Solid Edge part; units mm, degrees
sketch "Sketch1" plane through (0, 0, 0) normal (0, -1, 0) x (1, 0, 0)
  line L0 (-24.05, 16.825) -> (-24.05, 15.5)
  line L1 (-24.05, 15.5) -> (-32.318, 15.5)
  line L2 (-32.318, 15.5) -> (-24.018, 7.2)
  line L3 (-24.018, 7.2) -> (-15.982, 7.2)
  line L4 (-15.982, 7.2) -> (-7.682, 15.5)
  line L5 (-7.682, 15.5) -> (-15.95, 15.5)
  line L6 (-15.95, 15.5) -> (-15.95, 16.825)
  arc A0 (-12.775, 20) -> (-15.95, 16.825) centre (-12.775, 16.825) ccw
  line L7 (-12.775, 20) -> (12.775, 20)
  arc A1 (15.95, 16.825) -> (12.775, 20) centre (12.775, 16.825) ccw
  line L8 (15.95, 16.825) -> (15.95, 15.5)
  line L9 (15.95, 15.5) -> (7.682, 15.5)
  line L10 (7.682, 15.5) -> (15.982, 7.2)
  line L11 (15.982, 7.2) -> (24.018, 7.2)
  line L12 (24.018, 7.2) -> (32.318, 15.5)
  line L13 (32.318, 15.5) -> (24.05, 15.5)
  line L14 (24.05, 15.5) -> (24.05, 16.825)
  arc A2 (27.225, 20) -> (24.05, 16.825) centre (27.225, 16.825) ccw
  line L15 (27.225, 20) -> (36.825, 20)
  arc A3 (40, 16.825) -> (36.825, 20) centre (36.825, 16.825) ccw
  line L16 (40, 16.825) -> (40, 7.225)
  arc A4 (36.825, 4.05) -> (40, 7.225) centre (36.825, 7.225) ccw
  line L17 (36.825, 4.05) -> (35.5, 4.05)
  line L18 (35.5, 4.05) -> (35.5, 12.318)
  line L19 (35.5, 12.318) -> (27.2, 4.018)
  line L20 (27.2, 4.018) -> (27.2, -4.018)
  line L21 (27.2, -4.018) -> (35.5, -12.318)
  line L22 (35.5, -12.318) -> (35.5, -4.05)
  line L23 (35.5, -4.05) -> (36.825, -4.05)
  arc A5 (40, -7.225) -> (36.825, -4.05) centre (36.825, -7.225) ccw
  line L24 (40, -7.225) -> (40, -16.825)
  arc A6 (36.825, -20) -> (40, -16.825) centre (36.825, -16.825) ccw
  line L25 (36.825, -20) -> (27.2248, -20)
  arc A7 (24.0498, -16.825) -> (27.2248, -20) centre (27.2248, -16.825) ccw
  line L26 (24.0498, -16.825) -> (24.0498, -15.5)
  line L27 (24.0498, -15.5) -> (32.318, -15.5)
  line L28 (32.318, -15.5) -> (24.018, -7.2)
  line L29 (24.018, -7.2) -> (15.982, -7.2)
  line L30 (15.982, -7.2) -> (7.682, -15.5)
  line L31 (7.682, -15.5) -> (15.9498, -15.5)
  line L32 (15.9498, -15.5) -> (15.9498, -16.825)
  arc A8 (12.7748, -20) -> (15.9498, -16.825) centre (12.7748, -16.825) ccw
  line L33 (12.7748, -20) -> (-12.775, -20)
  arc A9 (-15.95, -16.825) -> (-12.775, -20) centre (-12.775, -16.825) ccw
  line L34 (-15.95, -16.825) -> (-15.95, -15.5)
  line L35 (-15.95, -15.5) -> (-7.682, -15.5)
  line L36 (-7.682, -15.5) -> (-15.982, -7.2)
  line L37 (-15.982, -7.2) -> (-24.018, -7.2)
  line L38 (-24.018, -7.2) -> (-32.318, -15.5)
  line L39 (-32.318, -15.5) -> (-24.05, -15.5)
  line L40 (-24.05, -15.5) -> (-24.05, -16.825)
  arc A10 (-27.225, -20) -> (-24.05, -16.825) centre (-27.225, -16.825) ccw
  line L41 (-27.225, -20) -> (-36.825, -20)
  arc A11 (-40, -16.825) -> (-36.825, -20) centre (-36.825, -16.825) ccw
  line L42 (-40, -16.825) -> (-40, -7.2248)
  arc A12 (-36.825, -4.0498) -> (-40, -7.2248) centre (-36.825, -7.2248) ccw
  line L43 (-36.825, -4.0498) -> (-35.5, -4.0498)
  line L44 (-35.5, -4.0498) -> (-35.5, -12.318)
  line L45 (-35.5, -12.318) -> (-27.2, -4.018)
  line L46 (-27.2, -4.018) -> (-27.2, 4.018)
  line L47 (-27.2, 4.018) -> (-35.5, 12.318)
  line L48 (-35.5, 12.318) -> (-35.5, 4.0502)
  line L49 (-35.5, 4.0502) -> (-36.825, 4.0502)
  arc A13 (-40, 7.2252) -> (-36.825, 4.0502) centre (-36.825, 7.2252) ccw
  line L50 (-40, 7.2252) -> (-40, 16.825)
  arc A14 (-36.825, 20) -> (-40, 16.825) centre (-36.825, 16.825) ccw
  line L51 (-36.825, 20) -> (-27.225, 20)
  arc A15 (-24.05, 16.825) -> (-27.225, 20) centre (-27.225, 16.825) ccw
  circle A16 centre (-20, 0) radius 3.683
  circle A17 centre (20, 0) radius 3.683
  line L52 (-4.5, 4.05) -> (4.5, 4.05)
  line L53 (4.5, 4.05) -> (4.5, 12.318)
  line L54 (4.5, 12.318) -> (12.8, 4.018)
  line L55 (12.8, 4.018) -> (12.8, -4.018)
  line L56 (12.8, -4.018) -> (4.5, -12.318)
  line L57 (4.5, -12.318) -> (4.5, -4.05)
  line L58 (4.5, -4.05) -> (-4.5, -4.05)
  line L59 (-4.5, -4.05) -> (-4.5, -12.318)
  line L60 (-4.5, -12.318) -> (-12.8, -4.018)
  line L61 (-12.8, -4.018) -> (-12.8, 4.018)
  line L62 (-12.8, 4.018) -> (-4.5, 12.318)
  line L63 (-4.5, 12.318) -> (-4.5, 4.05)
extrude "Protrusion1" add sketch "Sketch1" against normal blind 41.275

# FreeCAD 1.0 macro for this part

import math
import FreeCAD as App
import Part
import Sketcher
Q = App.Units.Quantity

doc = App.newDocument("Part")
body = doc.addObject("PartDesign::Body", "Body")

sketch1 = doc.addObject("Sketcher::SketchObject", "Sketch")
body.addObject(sketch1)
sketch1.AttachmentSupport = (doc.XZ_Plane, [""])
sketch1.MapMode = "FlatFace"
sketch1.addGeometry([
    Part.LineSegment(App.Vector(-24.1, 15.5, 0), App.Vector(-24.1, 16.8, 0)),
    Part.ArcOfCircle(Part.Circle(App.Vector(-27.2, 16.8, 0), App.Vector(0, 0, 1), 3.2), math.radians(0), math.radians(90)),
    Part.LineSegment(App.Vector(-27.2, 20, 0), App.Vector(-36.8, 20, 0)),
    Part.ArcOfCircle(Part.Circle(App.Vector(-36.8, 16.8, 0), App.Vector(0, 0, 1), 3.2), math.radians(90), math.radians(180)),
    Part.LineSegment(App.Vector(-40, 16.8, 0), App.Vector(-40, 7.2, 0)),
    Part.ArcOfCircle(Part.Circle(App.Vector(-36.8, 7.2, 0), App.Vector(0, 0, 1), 3.2), math.radians(180), math.radians(270)),
    Part.LineSegment(App.Vector(-36.8, 4.1, 0), App.Vector(-35.5, 4.1, 0)),
    Part.LineSegment(App.Vector(-35.5, 4.1, 0), App.Vector(-35.5, 12.3, 0)),
    Part.LineSegment(App.Vector(-35.5, 12.3, 0), App.Vector(-27.2, 4, 0)),
    Part.LineSegment(App.Vector(-27.2, 4, 0), App.Vector(-27.2, -4, 0)),
    Part.LineSegment(App.Vector(-27.2, -4, 0), App.Vector(-35.5, -12.3, 0)),
    Part.LineSegment(App.Vector(-35.5, -12.3, 0), App.Vector(-35.5, -4, 0)),
    Part.LineSegment(App.Vector(-35.5, -4, 0), App.Vector(-36.8, -4, 0)),
    Part.ArcOfCircle(Part.Circle(App.Vector(-36.8, -7.2, 0), App.Vector(0, 0, 1), 3.2), math.radians(90), math.radians(180)),
    Part.LineSegment(App.Vector(-40, -7.2, 0), App.Vector(-40, -16.8, 0)),
    Part.ArcOfCircle(Part.Circle(App.Vector(-36.8, -16.8, 0), App.Vector(0, 0, 1), 3.2), math.radians(180), math.radians(270)),
    Part.LineSegment(App.Vector(-36.8, -20, 0), App.Vector(-27.2, -20, 0)),
    Part.ArcOfCircle(Part.Circle(App.Vector(-27.2, -16.8, 0), App.Vector(0, 0, 1), 3.2), math.radians(-90), math.radians(0)),
    Part.LineSegment(App.Vector(-24.1, -16.8, 0), App.Vector(-24.1, -15.5, 0)),
    Part.LineSegment(App.Vector(-24.1, -15.5, 0), App.Vector(-32.3, -15.5, 0)),
    Part.LineSegment(App.Vector(-32.3, -15.5, 0), App.Vector(-24, -7.2, 0)),
    Part.LineSegment(App.Vector(-24, -7.2, 0), App.Vector(-16, -7.2, 0)),
    Part.LineSegment(App.Vector(-16, -7.2, 0), App.Vector(-7.7, -15.5, 0)),
    Part.LineSegment(App.Vector(-7.7, -15.5, 0), App.Vector(-15.9, -15.5, 0)),
    Part.LineSegment(App.Vector(-15.9, -15.5, 0), App.Vector(-15.9, -16.8, 0)),
    Part.ArcOfCircle(Part.Circle(App.Vector(-12.8, -16.8, 0), App.Vector(0, 0, 1), 3.2), math.radians(180), math.radians(270)),
    Part.LineSegment(App.Vector(-12.8, -20, 0), App.Vector(12.8, -20, 0)),
    Part.ArcOfCircle(Part.Circle(App.Vector(12.8, -16.8, 0), App.Vector(0, 0, 1), 3.2), math.radians(-90), math.radians(0)),
    Part.LineSegment(App.Vector(15.9, -16.8, 0), App.Vector(15.9, -15.5, 0)),
    Part.LineSegment(App.Vector(15.9, -15.5, 0), App.Vector(7.7, -15.5, 0)),
    Part.LineSegment(App.Vector(7.7, -15.5, 0), App.Vector(16, -7.2, 0)),
    Part.LineSegment(App.Vector(16, -7.2, 0), App.Vector(24, -7.2, 0)),
    Part.LineSegment(App.Vector(24, -7.2, 0), App.Vector(32.3, -15.5, 0)),
    Part.LineSegment(App.Vector(32.3, -15.5, 0), App.Vector(24, -15.5, 0)),
    Part.LineSegment(App.Vector(24, -15.5, 0), App.Vector(24, -16.8, 0)),
    Part.ArcOfCircle(Part.Circle(App.Vector(27.2, -16.8, 0), App.Vector(0, 0, 1), 3.2), math.radians(180), math.radians(270)),
    Part.LineSegment(App.Vector(27.2, -20, 0), App.Vector(36.8, -20, 0)),
    Part.ArcOfCircle(Part.Circle(App.Vector(36.8, -16.8, 0), App.Vector(0, 0, 1), 3.2), math.radians(-90), math.radians(0)),
    Part.LineSegment(App.Vector(40, -16.8, 0), App.Vector(40, -7.2, 0)),
    Part.ArcOfCircle(Part.Circle(App.Vector(36.8, -7.2, 0), App.Vector(0, 0, 1), 3.2), math.radians(0), math.radians(90)),
    Part.LineSegment(App.Vector(36.8, -4, 0), App.Vector(35.5, -4, 0)),
    Part.LineSegment(App.Vector(35.5, -4, 0), App.Vector(35.5, -12.3, 0)),
    Part.LineSegment(App.Vector(35.5, -12.3, 0), App.Vector(27.2, -4, 0)),
    Part.LineSegment(App.Vector(27.2, -4, 0), App.Vector(27.2, 4, 0)),
    Part.LineSegment(App.Vector(27.2, 4, 0), App.Vector(35.5, 12.3, 0)),
    Part.LineSegment(App.Vector(35.5, 12.3, 0), App.Vector(35.5, 4, 0)),
    Part.LineSegment(App.Vector(35.5, 4, 0), App.Vector(36.8, 4, 0)),
    Part.ArcOfCircle(Part.Circle(App.Vector(36.8, 7.2, 0), App.Vector(0, 0, 1), 3.2), math.radians(-90), math.radians(0)),
    Part.LineSegment(App.Vector(40, 7.2, 0), App.Vector(40, 16.8, 0)),
    Part.ArcOfCircle(Part.Circle(App.Vector(36.8, 16.8, 0), App.Vector(0, 0, 1), 3.2), math.radians(0), math.radians(90)),
    Part.LineSegment(App.Vector(36.8, 20, 0), App.Vector(27.2, 20, 0)),
    Part.ArcOfCircle(Part.Circle(App.Vector(27.2, 16.8, 0), App.Vector(0, 0, 1), 3.2), math.radians(90), math.radians(180)),
    Part.LineSegment(App.Vector(24.1, 16.8, 0), App.Vector(24.1, 15.5, 0)),
    Part.LineSegment(App.Vector(24.1, 15.5, 0), App.Vector(32.3, 15.5, 0)),
    Part.LineSegment(App.Vector(32.3, 15.5, 0), App.Vector(24, 7.2, 0)),
    Part.LineSegment(App.Vector(24, 7.2, 0), App.Vector(16, 7.2, 0)),
    Part.LineSegment(App.Vector(16, 7.2, 0), App.Vector(7.7, 15.5, 0)),
    Part.LineSegment(App.Vector(7.7, 15.5, 0), App.Vector(15.9, 15.5, 0)),
    Part.LineSegment(App.Vector(15.9, 15.5, 0), App.Vector(15.9, 16.8, 0)),
    Part.ArcOfCircle(Part.Circle(App.Vector(12.8, 16.8, 0), App.Vector(0, 0, 1), 3.2), math.radians(0), math.radians(90)),
    Part.LineSegment(App.Vector(12.8, 20, 0), App.Vector(-12.8, 20, 0)),
    Part.ArcOfCircle(Part.Circle(App.Vector(-12.8, 16.8, 0), App.Vector(0, 0, 1), 3.2), math.radians(90), math.radians(180)),
    Part.LineSegment(App.Vector(-15.9, 16.8, 0), App.Vector(-15.9, 15.5, 0)),
    Part.LineSegment(App.Vector(-15.9, 15.5, 0), App.Vector(-7.7, 15.5, 0)),
    Part.LineSegment(App.Vector(-7.7, 15.5, 0), App.Vector(-16, 7.2, 0)),
    Part.LineSegment(App.Vector(-16, 7.2, 0), App.Vector(-24, 7.2, 0)),
    Part.LineSegment(App.Vector(-24, 7.2, 0), App.Vector(-32.3, 15.5, 0)),
    Part.LineSegment(App.Vector(-32.3, 15.5, 0), App.Vector(-24.1, 15.5, 0)),
    Part.Circle(App.Vector(-20, 0, 0), App.Vector(0, 0, 1), 3.7),
    Part.LineSegment(App.Vector(-4.5, 12.3, 0), App.Vector(-4.5, 4, 0)),
    Part.LineSegment(App.Vector(-4.5, 4, 0), App.Vector(4.5, 4, 0)),
    Part.LineSegment(App.Vector(4.5, 4, 0), App.Vector(4.5, 12.3, 0)),
    Part.LineSegment(App.Vector(4.5, 12.3, 0), App.Vector(12.8, 4, 0)),
    Part.LineSegment(App.Vector(12.8, 4, 0), App.Vector(12.8, -4, 0)),
    Part.LineSegment(App.Vector(12.8, -4, 0), App.Vector(4.5, -12.3, 0)),
    Part.LineSegment(App.Vector(4.5, -12.3, 0), App.Vector(4.5, -4, 0)),
    Part.LineSegment(App.Vector(4.5, -4, 0), App.Vector(-4.5, -4, 0)),
    Part.LineSegment(App.Vector(-4.5, -4, 0), App.Vector(-4.5, -12.3, 0)),
    Part.LineSegment(App.Vector(-4.5, -12.3, 0), App.Vector(-12.8, -4, 0)),
    Part.LineSegment(App.Vector(-12.8, -4, 0), App.Vector(-12.8, 4, 0)),
    Part.LineSegment(App.Vector(-12.8, 4, 0), App.Vector(-4.5, 12.3, 0)),
    Part.Circle(App.Vector(20, 0, 0), App.Vector(0, 0, 1), 3.7),
], False)
sketch1.addConstraint([
    Sketcher.Constraint("Tangent", 0, 2, 1, 1),
    Sketcher.Constraint("Tangent", 1, 2, 2, 1),
    Sketcher.Constraint("Tangent", 2, 2, 3, 1),
    Sketcher.Constraint("Tangent", 3, 2, 4, 1),
    Sketcher.Constraint("Tangent", 4, 2, 5, 1),
    Sketcher.Constraint("Tangent", 5, 2, 6, 1),
    Sketcher.Constraint("Coincident", 6, 2, 7, 1),
    Sketcher.Constraint("Coincident", 7, 2, 8, 1),
    Sketcher.Constraint("Coincident", 8, 2, 9, 1),
    Sketcher.Constraint("Coincident", 9, 2, 10, 1),
    Sketcher.Constraint("Coincident", 10, 2, 11, 1),
    Sketcher.Constraint("Coincident", 11, 2, 12, 1),
    Sketcher.Constraint("Tangent", 12, 2, 13, 1),
    Sketcher.Constraint("Tangent", 13, 2, 14, 1),
    Sketcher.Constraint("Tangent", 14, 2, 15, 1),
    Sketcher.Constraint("Tangent", 15, 2, 16, 1),
    Sketcher.Constraint("Tangent", 16, 2, 17, 1),
    Sketcher.Constraint("Tangent", 17, 2, 18, 1),
    Sketcher.Constraint("Coincident", 18, 2, 19, 1),
    Sketcher.Constraint("Coincident", 19, 2, 20, 1),
    Sketcher.Constraint("Coincident", 20, 2, 21, 1),
    Sketcher.Constraint("Coincident", 21, 2, 22, 1),
    Sketcher.Constraint("Coincident", 22, 2, 23, 1),
    Sketcher.Constraint("Coincident", 23, 2, 24, 1),
    Sketcher.Constraint("Tangent", 24, 2, 25, 1),
    Sketcher.Constraint("Tangent", 25, 2, 26, 1),
    Sketcher.Constraint("Tangent", 26, 2, 27, 1),
    Sketcher.Constraint("Tangent", 27, 2, 28, 1),
    Sketcher.Constraint("Coincident", 28, 2, 29, 1),
    Sketcher.Constraint("Coincident", 29, 2, 30, 1),
    Sketcher.Constraint("Coincident", 30, 2, 31, 1),
    Sketcher.Constraint("Coincident", 31, 2, 32, 1),
    Sketcher.Constraint("Coincident", 32, 2, 33, 1),
    Sketcher.Constraint("Coincident", 33, 2, 34, 1),
    Sketcher.Constraint("Tangent", 34, 2, 35, 1),
    Sketcher.Constraint("Tangent", 35, 2, 36, 1),
    Sketcher.Constraint("Tangent", 36, 2, 37, 1),
    Sketcher.Constraint("Tangent", 37, 2, 38, 1),
    Sketcher.Constraint("Tangent", 38, 2, 39, 1),
    Sketcher.Constraint("Tangent", 39, 2, 40, 1),
    Sketcher.Constraint("Coincident", 40, 2, 41, 1),
    Sketcher.Constraint("Coincident", 41, 2, 42, 1),
    Sketcher.Constraint("Coincident", 42, 2, 43, 1),
    Sketcher.Constraint("Coincident", 43, 2, 44, 1),
    Sketcher.Constraint("Coincident", 44, 2, 45, 1),
    Sketcher.Constraint("Coincident", 45, 2, 46, 1),
    Sketcher.Constraint("Tangent", 46, 2, 47, 1),
    Sketcher.Constraint("Tangent", 47, 2, 48, 1),
    Sketcher.Constraint("Tangent", 48, 2, 49, 1),
    Sketcher.Constraint("Tangent", 49, 2, 50, 1),
    Sketcher.Constraint("Tangent", 50, 2, 51, 1),
    Sketcher.Constraint("Tangent", 51, 2, 52, 1),
    Sketcher.Constraint("Coincident", 52, 2, 53, 1),
    Sketcher.Constraint("Coincident", 53, 2, 54, 1),
    Sketcher.Constraint("Coincident", 54, 2, 55, 1),
    Sketcher.Constraint("Coincident", 55, 2, 56, 1),
    Sketcher.Constraint("Coincident", 56, 2, 57, 1),
    Sketcher.Constraint("Coincident", 57, 2, 58, 1),
    Sketcher.Constraint("Tangent", 58, 2, 59, 1),
    Sketcher.Constraint("Tangent", 59, 2, 60, 1),
    Sketcher.Constraint("Tangent", 60, 2, 61, 1),
    Sketcher.Constraint("Tangent", 61, 2, 62, 1),
    Sketcher.Constraint("Coincident", 62, 2, 63, 1),
    Sketcher.Constraint("Coincident", 63, 2, 64, 1),
    Sketcher.Constraint("Coincident", 64, 2, 65, 1),
    Sketcher.Constraint("Coincident", 65, 2, 66, 1),
    Sketcher.Constraint("Coincident", 66, 2, 67, 1),
    Sketcher.Constraint("Coincident", 67, 2, 0, 1),
    Sketcher.Constraint("Coincident", 69, 2, 70, 1),
    Sketcher.Constraint("Coincident", 70, 2, 71, 1),
    Sketcher.Constraint("Coincident", 71, 2, 72, 1),
    Sketcher.Constraint("Coincident", 72, 2, 73, 1),
    Sketcher.Constraint("Coincident", 73, 2, 74, 1),
    Sketcher.Constraint("Coincident", 74, 2, 75, 1),
    Sketcher.Constraint("Coincident", 75, 2, 76, 1),
    Sketcher.Constraint("Coincident", 76, 2, 77, 1),
    Sketcher.Constraint("Coincident", 77, 2, 78, 1),
    Sketcher.Constraint("Coincident", 78, 2, 79, 1),
    Sketcher.Constraint("Coincident", 79, 2, 80, 1),
    Sketcher.Constraint("Coincident", 80, 2, 69, 1),
    Sketcher.Constraint("Vertical", 0),
    Sketcher.Constraint("Horizontal", 2),
    Sketcher.Constraint("Vertical", 4),
    Sketcher.Constraint("Horizontal", 6),
    Sketcher.Constraint("Vertical", 7),
    Sketcher.Constraint("Vertical", 9),
    Sketcher.Constraint("Vertical", 11),
    Sketcher.Constraint("Horizontal", 12),
    Sketcher.Constraint("Vertical", 14),
    Sketcher.Constraint("Horizontal", 16),
    Sketcher.Constraint("Vertical", 18),
    Sketcher.Constraint("Horizontal", 19),
    Sketcher.Constraint("Horizontal", 21),
    Sketcher.Constraint("Horizontal", 23),
    Sketcher.Constraint("Vertical", 24),
    Sketcher.Constraint("Horizontal", 26),
    Sketcher.Constraint("Vertical", 28),
    Sketcher.Constraint("Horizontal", 29),
    Sketcher.Constraint("Horizontal", 31),
    Sketcher.Constraint("Horizontal", 33),
    Sketcher.Constraint("Vertical", 34),
    Sketcher.Constraint("Horizontal", 36),
    Sketcher.Constraint("Vertical", 38),
    Sketcher.Constraint("Horizontal", 40),
    Sketcher.Constraint("Vertical", 41),
    Sketcher.Constraint("Vertical", 43),
    Sketcher.Constraint("Vertical", 45),
    Sketcher.Constraint("Horizontal", 46),
    Sketcher.Constraint("Vertical", 48),
    Sketcher.Constraint("Horizontal", 50),
    Sketcher.Constraint("Vertical", 52),
    Sketcher.Constraint("Horizontal", 53),
    Sketcher.Constraint("Horizontal", 55),
    Sketcher.Constraint("Horizontal", 57),
    Sketcher.Constraint("Vertical", 58),
    Sketcher.Constraint("Horizontal", 60),
    Sketcher.Constraint("Vertical", 62),
    Sketcher.Constraint("Horizontal", 63),
    Sketcher.Constraint("Horizontal", 65),
    Sketcher.Constraint("Horizontal", 67),
    Sketcher.Constraint("Vertical", 69),
    Sketcher.Constraint("Horizontal", 70),
    Sketcher.Constraint("Vertical", 71),
    Sketcher.Constraint("Vertical", 73),
    Sketcher.Constraint("Vertical", 75),
    Sketcher.Constraint("Horizontal", 76),
    Sketcher.Constraint("Vertical", 77),
    Sketcher.Constraint("Vertical", 79),
    Sketcher.Constraint("Equal", 1, 3),
    Sketcher.Constraint("Equal", 3, 5),
    Sketcher.Constraint("Equal", 5, 13),
    Sketcher.Constraint("Equal", 13, 15),
    Sketcher.Constraint("Equal", 15, 17),
    Sketcher.Constraint("Equal", 17, 25),
    Sketcher.Constraint("Equal", 25, 27),
    Sketcher.Constraint("Equal", 27, 35),
    Sketcher.Constraint("Equal", 35, 37),
    Sketcher.Constraint("Equal", 37, 39),
    Sketcher.Constraint("Equal", 39, 47),
    Sketcher.Constraint("Equal", 47, 49),
    Sketcher.Constraint("Equal", 49, 51),
    Sketcher.Constraint("Equal", 51, 59),
    Sketcher.Constraint("Equal", 59, 61),
    Sketcher.Constraint("Equal", 68, 81),
    Sketcher.Constraint("Symmetric", 1, 3, 35, 3, -1, 1),
    Sketcher.Constraint("Symmetric", 5, 3, 39, 3, -1, 1),
    Sketcher.Constraint("Symmetric", 13, 3, 47, 3, -1, 1),
    Sketcher.Constraint("Symmetric", 17, 3, 51, 3, -1, 1),
    Sketcher.Constraint("Symmetric", 25, 3, 59, 3, -1, 1),
    Sketcher.Constraint("Symmetric", 68, 3, 81, 3, -1, 1),
    Sketcher.Constraint("Symmetric", 7, 2, 41, 2, -1, 1),
    Sketcher.Constraint("Symmetric", 8, 2, 42, 2, -1, 1),
    Sketcher.Constraint("Symmetric", 10, 2, 44, 2, -1, 1),
    Sketcher.Constraint("Symmetric", 19, 2, 53, 2, -1, 1),
    Sketcher.Constraint("Symmetric", 20, 2, 54, 2, -1, 1),
    Sketcher.Constraint("Symmetric", 22, 2, 56, 2, -1, 1),
    Sketcher.Constraint("Symmetric", 28, 2, 62, 2, -1, 1),
    Sketcher.Constraint("Symmetric", 30, 2, 64, 2, -1, 1),
    Sketcher.Constraint("Symmetric", 32, 2, 66, 2, -1, 1),
    Sketcher.Constraint("Symmetric", 69, 2, 75, 2, -1, 1),
    Sketcher.Constraint("Symmetric", 71, 2, 77, 2, -1, 1),
    Sketcher.Constraint("Symmetric", 72, 2, 78, 2, -1, 1),
    Sketcher.Constraint("Symmetric", 17, 3, 35, 3, -2),
    Sketcher.Constraint("Symmetric", 13, 3, 39, 3, -2),
    Sketcher.Constraint("Symmetric", 23, 2, 28, 2, -2),
    Sketcher.Constraint("Symmetric", 21, 2, 30, 2, -2),
    Sketcher.Constraint("Symmetric", 19, 2, 32, 2, -2),
    Sketcher.Constraint("Symmetric", 10, 2, 41, 2, -2),
    Sketcher.Constraint("Symmetric", 74, 2, 77, 2, -2),
    Sketcher.Constraint("PointOnObject", 68, 3, -1),
    Sketcher.Constraint("Perpendicular", 8, 10),
    Sketcher.Constraint("Parallel", 10, 20),
    Sketcher.Constraint("Perpendicular", 20, 22),
    Sketcher.Constraint("Perpendicular", 22, 30),
    Sketcher.Constraint("Perpendicular", 30, 32),
    Sketcher.Constraint("Perpendicular", 42, 44),
    Sketcher.Constraint("Perpendicular", 54, 56),
    Sketcher.Constraint("Perpendicular", 56, 64),
    Sketcher.Constraint("Perpendicular", 64, 66),
    Sketcher.Constraint("Parallel", 66, 72),
    Sketcher.Constraint("Perpendicular", 72, 74),
    Sketcher.Constraint("Perpendicular", 78, 80),
    Sketcher.Constraint("Horizontal", 17, 3, 25, 3),
    Sketcher.Constraint("Horizontal", 19, 2, 22, 2),
    Sketcher.Constraint("Horizontal", 9, 2, 42, 2),
    Sketcher.Constraint("Horizontal", 46, 2, 69, 2),
    Sketcher.Constraint("Horizontal", 44, 2, 71, 2),
    Sketcher.Constraint("Horizontal", 43, 2, 72, 2),
    Sketcher.Constraint("Horizontal", 72, 2, 79, 2),
    Sketcher.Constraint("Equal", 19, 23),
    Sketcher.Constraint("Equal", 46, 0),
    Sketcher.Constraint("Equal", 67, 7),
    Sketcher.Constraint("Equal", 65, 9),
    Sketcher.Constraint("Equal", 50, 14),
    Sketcher.Constraint("Equal", 10, 20),
    Sketcher.Constraint("Diameter", 68, Q("0.29 in")),
    Sketcher.Constraint("Radius", 1, Q("0.125 in")),
    Sketcher.Constraint("DistanceX", 19, 2, 19, 1, Q("0.3255 in")),
    Sketcher.Constraint("DistanceX", 26, 1, 26, 2, Q("1.0059 in")),
    Sketcher.Constraint("DistanceX", 2, 2, 2, 1, Q("9.6 mm")),
    Sketcher.Constraint("DistanceX", 6, 1, 6, 2, Q("1.325 mm")),
    Sketcher.Constraint("DistanceX", 21, 1, 21, 2, Q("8.036 mm")),
    Sketcher.Constraint("DistanceX", 70, 1, 70, 2, Q("9 mm")),
    Sketcher.Constraint("DistanceY", -1, 1, 1, 3, Q("0.6624 in")),
    Sketcher.Constraint("DistanceX", 68, 3, -1, 1, Q("0.7874 in")),
])
pad1 = doc.addObject("PartDesign::Pad", "Pad")
body.addObject(pad1)
pad1.Profile = sketch1
pad1.Length = Q("1.625 in")
pad1.Reversed = True

doc.recompute()
